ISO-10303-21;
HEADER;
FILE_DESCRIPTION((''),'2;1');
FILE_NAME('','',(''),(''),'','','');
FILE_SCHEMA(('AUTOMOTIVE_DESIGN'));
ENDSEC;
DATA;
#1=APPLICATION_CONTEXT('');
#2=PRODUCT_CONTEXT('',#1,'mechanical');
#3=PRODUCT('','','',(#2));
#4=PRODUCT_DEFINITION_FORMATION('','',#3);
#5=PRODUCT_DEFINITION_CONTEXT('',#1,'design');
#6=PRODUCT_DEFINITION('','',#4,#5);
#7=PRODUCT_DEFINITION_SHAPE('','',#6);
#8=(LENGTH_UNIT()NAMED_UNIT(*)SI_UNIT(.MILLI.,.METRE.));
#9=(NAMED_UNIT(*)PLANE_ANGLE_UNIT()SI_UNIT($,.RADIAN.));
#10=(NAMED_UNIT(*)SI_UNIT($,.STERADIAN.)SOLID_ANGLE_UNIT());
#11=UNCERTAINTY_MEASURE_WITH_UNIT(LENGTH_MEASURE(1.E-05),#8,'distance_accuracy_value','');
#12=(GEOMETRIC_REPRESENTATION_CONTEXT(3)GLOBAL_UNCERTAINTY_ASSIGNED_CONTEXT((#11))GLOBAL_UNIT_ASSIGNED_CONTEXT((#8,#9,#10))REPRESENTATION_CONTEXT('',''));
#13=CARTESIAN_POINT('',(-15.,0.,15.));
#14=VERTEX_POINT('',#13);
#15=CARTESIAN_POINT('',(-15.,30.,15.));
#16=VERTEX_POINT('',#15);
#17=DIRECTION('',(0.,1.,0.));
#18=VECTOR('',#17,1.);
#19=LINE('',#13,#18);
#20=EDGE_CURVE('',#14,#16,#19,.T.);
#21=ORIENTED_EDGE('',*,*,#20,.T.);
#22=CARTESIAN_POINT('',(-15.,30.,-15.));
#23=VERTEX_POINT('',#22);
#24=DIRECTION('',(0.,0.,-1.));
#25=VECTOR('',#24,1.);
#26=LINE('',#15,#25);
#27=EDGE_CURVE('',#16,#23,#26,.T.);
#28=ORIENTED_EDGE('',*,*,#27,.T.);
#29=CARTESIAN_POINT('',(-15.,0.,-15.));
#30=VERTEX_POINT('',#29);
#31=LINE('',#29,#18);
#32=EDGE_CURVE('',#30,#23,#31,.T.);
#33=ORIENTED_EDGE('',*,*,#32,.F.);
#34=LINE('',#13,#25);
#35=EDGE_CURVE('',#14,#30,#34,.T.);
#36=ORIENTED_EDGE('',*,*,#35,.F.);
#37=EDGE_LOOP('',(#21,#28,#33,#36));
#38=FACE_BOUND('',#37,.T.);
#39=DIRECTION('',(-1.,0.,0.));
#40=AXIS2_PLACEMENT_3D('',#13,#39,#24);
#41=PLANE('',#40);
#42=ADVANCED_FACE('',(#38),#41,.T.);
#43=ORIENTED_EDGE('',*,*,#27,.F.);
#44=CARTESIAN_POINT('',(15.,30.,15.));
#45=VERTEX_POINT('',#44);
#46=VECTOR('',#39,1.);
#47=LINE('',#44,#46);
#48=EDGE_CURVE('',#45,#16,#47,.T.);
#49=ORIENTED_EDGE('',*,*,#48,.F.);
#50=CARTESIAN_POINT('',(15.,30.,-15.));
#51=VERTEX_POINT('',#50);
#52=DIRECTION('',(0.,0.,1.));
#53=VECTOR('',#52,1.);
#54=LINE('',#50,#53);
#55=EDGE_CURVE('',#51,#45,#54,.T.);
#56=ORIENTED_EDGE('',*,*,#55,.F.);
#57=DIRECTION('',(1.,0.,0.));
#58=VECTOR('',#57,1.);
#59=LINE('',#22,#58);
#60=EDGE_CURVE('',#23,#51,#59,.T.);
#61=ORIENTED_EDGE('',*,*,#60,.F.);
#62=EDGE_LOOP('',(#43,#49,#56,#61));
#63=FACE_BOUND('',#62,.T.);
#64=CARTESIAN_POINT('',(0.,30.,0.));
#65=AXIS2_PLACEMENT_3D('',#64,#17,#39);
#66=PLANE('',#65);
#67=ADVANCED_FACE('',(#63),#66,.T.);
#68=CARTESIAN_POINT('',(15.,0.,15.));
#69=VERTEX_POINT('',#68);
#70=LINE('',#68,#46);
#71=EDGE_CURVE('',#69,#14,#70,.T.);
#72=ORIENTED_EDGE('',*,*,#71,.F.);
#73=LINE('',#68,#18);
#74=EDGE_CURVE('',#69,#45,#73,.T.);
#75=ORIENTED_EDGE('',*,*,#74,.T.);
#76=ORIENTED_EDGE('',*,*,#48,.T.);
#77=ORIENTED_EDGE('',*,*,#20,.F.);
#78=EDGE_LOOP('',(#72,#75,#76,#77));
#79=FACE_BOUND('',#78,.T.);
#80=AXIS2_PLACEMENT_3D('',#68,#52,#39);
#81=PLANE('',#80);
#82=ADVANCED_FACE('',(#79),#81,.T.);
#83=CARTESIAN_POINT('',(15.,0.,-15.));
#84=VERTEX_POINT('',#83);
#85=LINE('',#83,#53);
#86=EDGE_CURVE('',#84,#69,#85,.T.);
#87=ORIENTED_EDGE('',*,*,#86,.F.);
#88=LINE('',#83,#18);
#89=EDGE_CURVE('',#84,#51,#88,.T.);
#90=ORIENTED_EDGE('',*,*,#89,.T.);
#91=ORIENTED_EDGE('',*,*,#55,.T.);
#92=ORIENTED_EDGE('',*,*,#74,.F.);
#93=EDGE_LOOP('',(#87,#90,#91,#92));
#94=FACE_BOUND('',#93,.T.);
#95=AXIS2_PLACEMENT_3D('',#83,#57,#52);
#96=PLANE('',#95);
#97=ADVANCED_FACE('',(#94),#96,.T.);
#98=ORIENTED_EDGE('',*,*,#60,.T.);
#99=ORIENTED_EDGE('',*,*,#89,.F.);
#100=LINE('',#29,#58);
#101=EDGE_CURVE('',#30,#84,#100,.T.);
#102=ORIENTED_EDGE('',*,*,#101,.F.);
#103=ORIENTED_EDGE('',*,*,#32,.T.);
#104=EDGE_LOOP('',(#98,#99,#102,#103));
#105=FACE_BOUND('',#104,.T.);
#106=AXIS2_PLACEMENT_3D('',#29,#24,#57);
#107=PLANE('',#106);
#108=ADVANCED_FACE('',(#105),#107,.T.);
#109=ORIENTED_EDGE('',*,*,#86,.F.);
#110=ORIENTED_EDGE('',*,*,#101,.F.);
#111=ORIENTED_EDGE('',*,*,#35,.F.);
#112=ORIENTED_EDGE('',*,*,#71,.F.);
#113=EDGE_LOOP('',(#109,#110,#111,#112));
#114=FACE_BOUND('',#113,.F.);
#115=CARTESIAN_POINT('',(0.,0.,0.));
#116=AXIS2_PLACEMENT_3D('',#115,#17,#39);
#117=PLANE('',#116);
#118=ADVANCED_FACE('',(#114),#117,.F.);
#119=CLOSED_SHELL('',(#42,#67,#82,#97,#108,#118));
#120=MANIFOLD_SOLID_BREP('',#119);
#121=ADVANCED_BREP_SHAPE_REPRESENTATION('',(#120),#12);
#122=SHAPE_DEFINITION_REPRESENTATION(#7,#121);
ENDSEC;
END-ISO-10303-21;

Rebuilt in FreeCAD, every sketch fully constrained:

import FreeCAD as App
import Part
import Sketcher
from FreeCAD import Vector
Q = App.Units.Quantity


def add_polygon(sketch, points):
    """Adds a closed chain of lines whose ends are joined by coincident constraints."""
    first, n = sketch.GeometryCount, len(points)
    for a, b in zip(points, points[1:] + points[:1]):
        sketch.addGeometry(Part.LineSegment(App.Vector(*a, 0), App.Vector(*b, 0)), False)
    for i in range(n):
        sketch.addConstraint(Sketcher.Constraint("Coincident", first + i, 2, first + (i + 1) % n, 1))

doc = App.newDocument("Part")
body = doc.addObject("PartDesign::Body", "Body")

sketch1 = doc.addObject("Sketcher::SketchObject", "Sketch")
body.addObject(sketch1)
sketch1.AttachmentSupport = (doc.XZ_Plane, [""])
sketch1.MapMode = "FlatFace"
add_polygon(sketch1, [(-15, 15), (15, 15), (15, -15), (-15, -15)])
sketch1.addConstraint(Sketcher.Constraint("Horizontal", 0))
sketch1.addConstraint(Sketcher.Constraint("Vertical", 1))
sketch1.addConstraint(Sketcher.Constraint("Horizontal", 2))
sketch1.addConstraint(Sketcher.Constraint("Vertical", 3))
sketch1.addConstraint(Sketcher.Constraint("Symmetric", 0, 2, 2, 2, -1, 1))
sketch1.addConstraint(Sketcher.Constraint("Equal", 2, 1))
sketch1.addConstraint(Sketcher.Constraint("DistanceX", 0, 1, 0, 2, Q("30 mm")))
pad1 = doc.addObject("PartDesign::Pad", "Pad")
body.addObject(pad1)
pad1.Profile = sketch1
pad1.Length = 30
pad1.Reversed = True

doc.recompute()
